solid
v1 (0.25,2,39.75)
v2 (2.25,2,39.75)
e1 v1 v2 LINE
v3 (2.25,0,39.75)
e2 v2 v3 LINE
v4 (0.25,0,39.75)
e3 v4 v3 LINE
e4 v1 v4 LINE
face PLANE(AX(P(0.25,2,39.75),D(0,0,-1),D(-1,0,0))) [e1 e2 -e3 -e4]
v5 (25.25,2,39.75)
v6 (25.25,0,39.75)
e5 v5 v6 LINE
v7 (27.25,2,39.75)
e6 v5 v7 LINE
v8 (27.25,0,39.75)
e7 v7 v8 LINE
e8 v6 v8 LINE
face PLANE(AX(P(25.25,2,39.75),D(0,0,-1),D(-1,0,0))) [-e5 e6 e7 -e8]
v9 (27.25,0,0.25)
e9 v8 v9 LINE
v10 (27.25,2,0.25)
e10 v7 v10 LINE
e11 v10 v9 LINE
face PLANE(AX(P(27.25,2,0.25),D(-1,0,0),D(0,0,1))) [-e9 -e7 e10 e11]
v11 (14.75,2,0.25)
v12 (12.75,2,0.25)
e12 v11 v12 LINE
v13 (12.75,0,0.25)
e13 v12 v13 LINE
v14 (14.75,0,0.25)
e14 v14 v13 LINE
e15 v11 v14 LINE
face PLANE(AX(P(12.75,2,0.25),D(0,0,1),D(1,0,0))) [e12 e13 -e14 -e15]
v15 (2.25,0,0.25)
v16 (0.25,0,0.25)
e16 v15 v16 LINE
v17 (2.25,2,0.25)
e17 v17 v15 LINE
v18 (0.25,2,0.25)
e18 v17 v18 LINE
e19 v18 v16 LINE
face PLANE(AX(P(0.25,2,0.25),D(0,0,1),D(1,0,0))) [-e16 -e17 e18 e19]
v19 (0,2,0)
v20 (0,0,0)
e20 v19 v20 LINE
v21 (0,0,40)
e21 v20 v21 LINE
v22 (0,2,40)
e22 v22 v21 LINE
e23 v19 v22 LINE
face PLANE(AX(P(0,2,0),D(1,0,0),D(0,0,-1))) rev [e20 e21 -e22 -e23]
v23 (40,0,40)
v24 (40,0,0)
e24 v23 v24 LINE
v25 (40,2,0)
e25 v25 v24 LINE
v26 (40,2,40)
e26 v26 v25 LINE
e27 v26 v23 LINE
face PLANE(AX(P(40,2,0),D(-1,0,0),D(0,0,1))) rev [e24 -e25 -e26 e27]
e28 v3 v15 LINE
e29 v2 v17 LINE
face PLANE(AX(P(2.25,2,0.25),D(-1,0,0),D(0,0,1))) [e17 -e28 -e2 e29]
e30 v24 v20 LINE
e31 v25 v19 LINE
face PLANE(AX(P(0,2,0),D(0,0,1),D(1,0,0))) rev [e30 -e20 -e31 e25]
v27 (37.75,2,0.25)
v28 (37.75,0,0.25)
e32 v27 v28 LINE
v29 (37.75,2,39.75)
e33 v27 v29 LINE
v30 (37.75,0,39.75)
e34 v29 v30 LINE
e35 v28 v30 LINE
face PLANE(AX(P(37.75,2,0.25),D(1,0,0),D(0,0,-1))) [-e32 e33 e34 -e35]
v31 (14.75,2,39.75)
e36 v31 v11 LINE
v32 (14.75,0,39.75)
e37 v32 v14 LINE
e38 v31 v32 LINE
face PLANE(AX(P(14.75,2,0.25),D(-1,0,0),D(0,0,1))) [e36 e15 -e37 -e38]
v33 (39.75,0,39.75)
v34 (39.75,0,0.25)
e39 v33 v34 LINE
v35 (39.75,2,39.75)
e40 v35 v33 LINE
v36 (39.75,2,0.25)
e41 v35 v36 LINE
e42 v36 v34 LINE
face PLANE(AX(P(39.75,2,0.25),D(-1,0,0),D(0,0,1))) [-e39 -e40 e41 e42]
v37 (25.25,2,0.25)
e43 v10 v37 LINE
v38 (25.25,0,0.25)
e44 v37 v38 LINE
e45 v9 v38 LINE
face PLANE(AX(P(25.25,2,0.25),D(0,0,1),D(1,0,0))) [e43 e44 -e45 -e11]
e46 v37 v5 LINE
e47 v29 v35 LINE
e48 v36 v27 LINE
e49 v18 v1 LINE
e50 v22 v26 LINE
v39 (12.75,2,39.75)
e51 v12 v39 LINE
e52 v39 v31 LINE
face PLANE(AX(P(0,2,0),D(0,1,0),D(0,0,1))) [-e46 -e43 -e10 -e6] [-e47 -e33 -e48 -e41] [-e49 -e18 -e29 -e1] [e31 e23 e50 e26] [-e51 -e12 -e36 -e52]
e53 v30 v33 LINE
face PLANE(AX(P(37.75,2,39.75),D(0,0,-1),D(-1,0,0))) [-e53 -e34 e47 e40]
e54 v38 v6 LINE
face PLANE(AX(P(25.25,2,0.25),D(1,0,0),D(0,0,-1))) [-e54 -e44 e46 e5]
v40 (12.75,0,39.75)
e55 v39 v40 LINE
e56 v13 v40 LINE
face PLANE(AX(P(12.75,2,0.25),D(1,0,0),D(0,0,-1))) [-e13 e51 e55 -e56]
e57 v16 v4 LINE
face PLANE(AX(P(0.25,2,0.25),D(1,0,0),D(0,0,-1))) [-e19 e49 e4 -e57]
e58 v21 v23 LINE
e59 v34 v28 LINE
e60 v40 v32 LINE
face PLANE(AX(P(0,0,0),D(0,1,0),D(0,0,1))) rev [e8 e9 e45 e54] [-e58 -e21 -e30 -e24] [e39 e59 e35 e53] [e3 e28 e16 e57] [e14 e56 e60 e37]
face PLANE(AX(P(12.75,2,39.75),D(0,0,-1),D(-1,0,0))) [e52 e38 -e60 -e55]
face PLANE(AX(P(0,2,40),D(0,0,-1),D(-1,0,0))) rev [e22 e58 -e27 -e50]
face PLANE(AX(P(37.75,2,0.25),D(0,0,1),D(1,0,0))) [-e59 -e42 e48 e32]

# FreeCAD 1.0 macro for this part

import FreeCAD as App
import Part
import Sketcher
Q = App.Units.Quantity


def add_polygon(sketch, points):
    """Adds a closed chain of lines whose ends are joined by coincident constraints."""
    first, n = sketch.GeometryCount, len(points)
    for a, b in zip(points, points[1:] + points[:1]):
        sketch.addGeometry(Part.LineSegment(App.Vector(*a, 0), App.Vector(*b, 0)), False)
    for i in range(n):
        sketch.addConstraint(Sketcher.Constraint("Coincident", first + i, 2, first + (i + 1) % n, 1))

doc = App.newDocument("Part")
body = doc.addObject("PartDesign::Body", "Body")

# Sketch on XZ plane
sketch1 = doc.addObject("Sketcher::SketchObject", "Sketch")
body.addObject(sketch1)
sketch1.AttachmentSupport = (doc.XZ_Plane, [""])
sketch1.MapMode = "FlatFace"
add_polygon(sketch1, [(0, 0), (0, 40), (40, 40), (40, 0)])  # lines 0-3
add_polygon(sketch1, [(2.25, 39.75), (0.25, 39.75), (0.25, 0.25), (2.25, 0.25)])  # lines 4-7
add_polygon(sketch1, [(14.75, 39.75), (12.75, 39.75), (12.75, 0.25), (14.75, 0.25)])  # lines 8-11
add_polygon(sketch1, [(27.25, 39.75), (25.25, 39.75), (25.25, 0.25), (27.25, 0.25)])  # lines 12-15
add_polygon(sketch1, [(39.75, 39.75), (37.75, 39.75), (37.75, 0.25), (39.75, 0.25)])  # lines 16-19
sketch1.addConstraint([
    Sketcher.Constraint("Vertical", 0),
    Sketcher.Constraint("Horizontal", 1),
    Sketcher.Constraint("Vertical", 2),
    Sketcher.Constraint("Horizontal", 3),
    Sketcher.Constraint("Horizontal", 4),
    Sketcher.Constraint("Vertical", 5),
    Sketcher.Constraint("Horizontal", 6),
    Sketcher.Constraint("Vertical", 7),
    Sketcher.Constraint("Horizontal", 8),
    Sketcher.Constraint("Vertical", 9),
    Sketcher.Constraint("Horizontal", 10),
    Sketcher.Constraint("Vertical", 11),
    Sketcher.Constraint("Horizontal", 12),
    Sketcher.Constraint("Vertical", 13),
    Sketcher.Constraint("Horizontal", 14),
    Sketcher.Constraint("Vertical", 15),
    Sketcher.Constraint("Horizontal", 16),
    Sketcher.Constraint("Vertical", 17),
    Sketcher.Constraint("Horizontal", 18),
    Sketcher.Constraint("Vertical", 19),
    Sketcher.Constraint("Coincident", 3, 2, -1, 1),
    Sketcher.Constraint("Horizontal", 7, 2, 8, 2),
    Sketcher.Constraint("Horizontal", 6, 2, 9, 2),
    Sketcher.Constraint("Horizontal", 11, 2, 12, 2),
    Sketcher.Constraint("Horizontal", 10, 2, 13, 2),
    Sketcher.Constraint("Horizontal", 15, 2, 16, 2),
    Sketcher.Constraint("Horizontal", 14, 2, 17, 2),
    Sketcher.Constraint("Equal", 6, 8),
    Sketcher.Constraint("Equal", 10, 12),
    Sketcher.Constraint("Equal", 14, 16),
    Sketcher.Constraint("Equal", 3, 0),
    Sketcher.Constraint("DistanceX", 1, 1, 1, 2, Q("40 mm")),
    Sketcher.Constraint("DistanceX", 4, 2, 4, 1, Q("2 mm")),
    Sketcher.Constraint("DistanceY", 5, 2, 5, 1, Q("39.5 mm")),
    Sketcher.Constraint("DistanceX", 7, 2, 12, 2, Q("23 mm")),
    Sketcher.Constraint("DistanceX", 11, 2, 16, 2, Q("23 mm")),
    Sketcher.Constraint("DistanceX", 7, 2, 8, 2, Q("10.5 mm")),
    Sketcher.Constraint("DistanceX", -1, 1, 4, 2, Q("0.25 mm")),
    Sketcher.Constraint("DistanceY", -1, 1, 4, 2, Q("39.75 mm")),
])
pad1 = doc.addObject("PartDesign::Pad", "Pad")
body.addObject(pad1)
pad1.Profile = sketch1
pad1.Length = 2
pad1.Reversed = True

doc.recompute()
